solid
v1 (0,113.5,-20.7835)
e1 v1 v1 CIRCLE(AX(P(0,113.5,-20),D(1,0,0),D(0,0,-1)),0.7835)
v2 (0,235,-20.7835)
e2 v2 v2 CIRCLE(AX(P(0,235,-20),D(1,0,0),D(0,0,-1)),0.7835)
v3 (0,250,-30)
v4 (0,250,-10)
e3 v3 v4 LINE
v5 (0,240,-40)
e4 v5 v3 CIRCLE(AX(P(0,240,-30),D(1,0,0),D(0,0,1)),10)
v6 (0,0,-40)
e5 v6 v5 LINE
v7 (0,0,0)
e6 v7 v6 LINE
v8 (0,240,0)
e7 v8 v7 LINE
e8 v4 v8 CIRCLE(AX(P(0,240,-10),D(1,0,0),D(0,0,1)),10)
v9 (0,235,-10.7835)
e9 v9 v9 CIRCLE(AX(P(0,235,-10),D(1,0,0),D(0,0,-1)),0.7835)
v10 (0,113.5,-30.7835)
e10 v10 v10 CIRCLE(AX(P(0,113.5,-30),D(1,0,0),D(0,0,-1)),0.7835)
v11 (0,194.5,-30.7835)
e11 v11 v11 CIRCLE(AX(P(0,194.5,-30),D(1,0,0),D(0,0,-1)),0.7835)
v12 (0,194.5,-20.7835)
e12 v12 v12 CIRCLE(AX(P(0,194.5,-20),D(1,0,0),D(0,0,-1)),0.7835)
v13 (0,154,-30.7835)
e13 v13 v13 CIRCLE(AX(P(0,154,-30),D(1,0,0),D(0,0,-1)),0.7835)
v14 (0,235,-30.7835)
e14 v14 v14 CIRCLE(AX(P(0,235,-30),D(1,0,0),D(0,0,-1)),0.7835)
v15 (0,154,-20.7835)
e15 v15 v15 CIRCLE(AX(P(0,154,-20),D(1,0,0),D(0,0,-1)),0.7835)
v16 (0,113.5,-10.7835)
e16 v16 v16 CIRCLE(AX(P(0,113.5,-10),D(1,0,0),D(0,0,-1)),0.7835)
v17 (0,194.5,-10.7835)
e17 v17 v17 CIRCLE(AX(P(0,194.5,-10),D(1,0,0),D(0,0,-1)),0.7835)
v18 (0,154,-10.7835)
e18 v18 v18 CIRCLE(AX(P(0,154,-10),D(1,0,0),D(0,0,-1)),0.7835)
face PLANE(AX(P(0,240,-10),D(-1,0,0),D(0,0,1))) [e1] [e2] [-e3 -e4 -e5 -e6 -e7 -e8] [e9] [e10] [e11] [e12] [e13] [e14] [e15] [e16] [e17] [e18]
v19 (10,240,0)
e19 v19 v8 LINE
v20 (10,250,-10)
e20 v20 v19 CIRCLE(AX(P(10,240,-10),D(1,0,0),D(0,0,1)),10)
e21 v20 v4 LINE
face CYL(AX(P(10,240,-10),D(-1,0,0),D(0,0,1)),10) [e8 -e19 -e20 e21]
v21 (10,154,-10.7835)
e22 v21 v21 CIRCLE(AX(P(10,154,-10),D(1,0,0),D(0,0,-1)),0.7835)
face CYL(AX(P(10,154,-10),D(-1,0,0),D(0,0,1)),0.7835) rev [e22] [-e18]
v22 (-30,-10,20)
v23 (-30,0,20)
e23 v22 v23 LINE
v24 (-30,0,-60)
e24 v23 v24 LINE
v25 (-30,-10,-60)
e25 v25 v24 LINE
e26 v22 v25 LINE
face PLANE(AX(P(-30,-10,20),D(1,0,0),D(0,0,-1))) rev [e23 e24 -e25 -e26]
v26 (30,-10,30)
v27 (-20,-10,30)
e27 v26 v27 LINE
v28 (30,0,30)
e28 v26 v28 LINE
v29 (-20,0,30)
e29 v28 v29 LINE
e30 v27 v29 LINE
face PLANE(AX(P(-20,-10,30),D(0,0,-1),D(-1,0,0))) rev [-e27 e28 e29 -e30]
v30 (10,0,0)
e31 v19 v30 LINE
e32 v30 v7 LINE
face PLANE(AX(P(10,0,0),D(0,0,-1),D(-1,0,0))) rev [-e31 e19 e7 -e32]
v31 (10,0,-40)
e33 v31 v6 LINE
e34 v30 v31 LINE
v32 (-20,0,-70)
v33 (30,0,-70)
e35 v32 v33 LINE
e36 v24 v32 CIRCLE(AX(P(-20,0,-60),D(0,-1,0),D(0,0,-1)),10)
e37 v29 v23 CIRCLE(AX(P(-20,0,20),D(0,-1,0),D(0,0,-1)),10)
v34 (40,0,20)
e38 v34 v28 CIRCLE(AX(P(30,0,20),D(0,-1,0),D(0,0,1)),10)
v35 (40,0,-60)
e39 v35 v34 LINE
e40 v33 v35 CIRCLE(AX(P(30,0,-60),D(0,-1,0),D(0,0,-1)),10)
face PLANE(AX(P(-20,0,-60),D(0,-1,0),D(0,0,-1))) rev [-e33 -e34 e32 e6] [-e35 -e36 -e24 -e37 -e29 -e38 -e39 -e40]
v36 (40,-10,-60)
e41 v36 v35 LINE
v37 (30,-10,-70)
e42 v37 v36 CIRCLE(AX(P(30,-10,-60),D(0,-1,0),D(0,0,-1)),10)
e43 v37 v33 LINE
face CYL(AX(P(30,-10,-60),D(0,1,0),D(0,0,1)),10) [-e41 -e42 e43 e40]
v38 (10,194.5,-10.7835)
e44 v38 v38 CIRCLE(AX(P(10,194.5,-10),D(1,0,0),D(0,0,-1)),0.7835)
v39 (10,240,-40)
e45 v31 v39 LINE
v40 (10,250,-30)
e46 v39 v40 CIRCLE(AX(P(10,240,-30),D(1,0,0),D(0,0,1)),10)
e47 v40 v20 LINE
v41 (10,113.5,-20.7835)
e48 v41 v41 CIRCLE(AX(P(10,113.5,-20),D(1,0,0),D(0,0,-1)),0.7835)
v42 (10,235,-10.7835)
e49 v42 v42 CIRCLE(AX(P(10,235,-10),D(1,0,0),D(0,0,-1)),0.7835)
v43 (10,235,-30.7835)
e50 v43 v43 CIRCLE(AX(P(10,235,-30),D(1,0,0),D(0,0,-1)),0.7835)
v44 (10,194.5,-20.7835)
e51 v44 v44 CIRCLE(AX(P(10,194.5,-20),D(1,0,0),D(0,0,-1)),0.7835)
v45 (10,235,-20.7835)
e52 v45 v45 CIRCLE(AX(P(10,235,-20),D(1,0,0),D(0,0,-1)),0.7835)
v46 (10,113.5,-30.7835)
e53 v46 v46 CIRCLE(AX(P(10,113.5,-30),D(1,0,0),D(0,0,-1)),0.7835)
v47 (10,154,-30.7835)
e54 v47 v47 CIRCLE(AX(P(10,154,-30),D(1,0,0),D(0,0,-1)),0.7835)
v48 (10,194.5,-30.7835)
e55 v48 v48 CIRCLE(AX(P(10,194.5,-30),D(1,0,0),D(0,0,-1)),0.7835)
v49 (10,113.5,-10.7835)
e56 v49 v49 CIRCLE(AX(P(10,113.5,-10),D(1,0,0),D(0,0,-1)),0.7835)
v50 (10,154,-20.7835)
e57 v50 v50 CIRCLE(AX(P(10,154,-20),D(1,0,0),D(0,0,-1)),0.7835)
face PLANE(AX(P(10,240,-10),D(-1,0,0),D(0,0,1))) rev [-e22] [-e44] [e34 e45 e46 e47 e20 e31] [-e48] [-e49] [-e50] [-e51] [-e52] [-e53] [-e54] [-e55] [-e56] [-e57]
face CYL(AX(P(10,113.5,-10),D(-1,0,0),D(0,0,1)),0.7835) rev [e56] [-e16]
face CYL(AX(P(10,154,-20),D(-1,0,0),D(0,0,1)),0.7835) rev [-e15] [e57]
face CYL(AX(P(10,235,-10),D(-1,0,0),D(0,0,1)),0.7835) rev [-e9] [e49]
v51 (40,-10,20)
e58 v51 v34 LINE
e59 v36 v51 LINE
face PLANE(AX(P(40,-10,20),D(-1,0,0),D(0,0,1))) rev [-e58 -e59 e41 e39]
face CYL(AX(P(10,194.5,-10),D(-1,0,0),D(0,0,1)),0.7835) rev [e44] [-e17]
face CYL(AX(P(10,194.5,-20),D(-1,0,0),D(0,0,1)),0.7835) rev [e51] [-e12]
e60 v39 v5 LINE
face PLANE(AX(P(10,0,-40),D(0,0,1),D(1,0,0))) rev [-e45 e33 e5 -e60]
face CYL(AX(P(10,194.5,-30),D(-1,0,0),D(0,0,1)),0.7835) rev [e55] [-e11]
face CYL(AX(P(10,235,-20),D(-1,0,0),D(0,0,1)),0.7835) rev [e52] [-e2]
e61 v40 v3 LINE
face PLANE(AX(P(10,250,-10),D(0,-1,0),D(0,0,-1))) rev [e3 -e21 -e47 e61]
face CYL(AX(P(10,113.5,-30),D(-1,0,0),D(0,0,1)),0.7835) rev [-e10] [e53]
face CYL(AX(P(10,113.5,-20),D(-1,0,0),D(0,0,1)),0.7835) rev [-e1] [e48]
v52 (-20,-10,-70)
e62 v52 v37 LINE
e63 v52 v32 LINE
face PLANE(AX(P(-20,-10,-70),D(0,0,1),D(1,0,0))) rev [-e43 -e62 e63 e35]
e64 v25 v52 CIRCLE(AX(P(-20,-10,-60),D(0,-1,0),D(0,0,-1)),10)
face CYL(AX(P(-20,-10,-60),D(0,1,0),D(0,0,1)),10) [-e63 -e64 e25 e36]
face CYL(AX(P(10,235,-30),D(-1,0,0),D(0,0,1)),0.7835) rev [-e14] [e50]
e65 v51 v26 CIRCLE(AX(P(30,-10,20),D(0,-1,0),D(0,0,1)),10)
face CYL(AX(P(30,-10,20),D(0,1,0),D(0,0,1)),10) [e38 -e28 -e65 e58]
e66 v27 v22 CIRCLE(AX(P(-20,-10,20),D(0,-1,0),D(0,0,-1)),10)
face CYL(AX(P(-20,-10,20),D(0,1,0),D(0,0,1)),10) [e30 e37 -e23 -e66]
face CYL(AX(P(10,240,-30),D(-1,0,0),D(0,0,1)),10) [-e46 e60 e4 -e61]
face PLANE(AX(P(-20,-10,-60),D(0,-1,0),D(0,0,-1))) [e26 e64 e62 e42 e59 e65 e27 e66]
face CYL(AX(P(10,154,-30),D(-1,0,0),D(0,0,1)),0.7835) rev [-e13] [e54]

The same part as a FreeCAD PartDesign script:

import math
import FreeCAD as App
import Part
import Sketcher

V = App.Vector

doc = App.newDocument("Part")
params = doc.addObject("Spreadsheet::Sheet", "Params")
for row, (alias, value) in enumerate([
    ("sketch1_radius", "10 mm"),
    ("sketch1_width", "240 mm"),
    ("sketch1_height", "40 mm"),
    ("pad1_length", "10 mm"),
    ("sketch2_radius", "10 mm"),
    ("sketch2_width", "50 mm"),
    ("sketch2_height", "80 mm"),
    ("pad2_length", "10 mm"),
], start=1):
    params.set(f"A{row}", alias)
    params.set(f"B{row}", "=" + value)
    params.setAlias(f"B{row}", alias)

body = doc.addObject("PartDesign::Body", "Body")

sketch1 = body.newObject("Sketcher::SketchObject", "Sketch")
sketch1.AttachmentSupport = (doc.getObject("YZ_Plane"), [""])
sketch1.MapMode = "FlatFace"
sketch1.addGeometry([
    Part.LineSegment(V(0, 0, 0), V(0, -40, 0)),
    Part.LineSegment(V(0, -40, 0), V(240, -40, 0)),
    Part.ArcOfCircle(Part.Circle(V(240, -30, 0), V(0, 0, 1), 10), math.radians(-90), math.radians(0)),
    Part.LineSegment(V(250, -30, 0), V(250, -10, 0)),
    Part.ArcOfCircle(Part.Circle(V(240, -10, 0), V(0, 0, 1), 10), math.radians(0), math.radians(90)),
    Part.LineSegment(V(240, 0, 0), V(0, 0, 0)),
    Part.Circle(V(113.5, -10, 0), V(0, 0, 1), 0.8),
    Part.Circle(V(154, -10, 0), V(0, 0, 1), 0.8),
    Part.Circle(V(113.5, -20, 0), V(0, 0, 1), 0.8),
    Part.Circle(V(113.5, -30, 0), V(0, 0, 1), 0.8),
    Part.Circle(V(154, -20, 0), V(0, 0, 1), 0.8),
    Part.Circle(V(154, -30, 0), V(0, 0, 1), 0.8),
    Part.Circle(V(194.5, -10, 0), V(0, 0, 1), 0.8),
    Part.Circle(V(235, -10, 0), V(0, 0, 1), 0.8),
    Part.Circle(V(194.5, -20, 0), V(0, 0, 1), 0.8),
    Part.Circle(V(194.5, -30, 0), V(0, 0, 1), 0.8),
    Part.Circle(V(235, -20, 0), V(0, 0, 1), 0.8),
    Part.Circle(V(235, -30, 0), V(0, 0, 1), 0.8),
], False)
sketch1.addConstraint([
    Sketcher.Constraint("Coincident", 0, 2, 1, 1),
    Sketcher.Constraint("Tangent", 1, 2, 2, 1),
    Sketcher.Constraint("Tangent", 2, 2, 3, 1),
    Sketcher.Constraint("Tangent", 3, 2, 4, 1),
    Sketcher.Constraint("Tangent", 4, 2, 5, 1),
    Sketcher.Constraint("Coincident", 5, 2, 0, 1),
    Sketcher.Constraint("Vertical", 0),
    Sketcher.Constraint("Horizontal", 1),
    Sketcher.Constraint("Vertical", 3),
    Sketcher.Constraint("Horizontal", 5),
    Sketcher.Constraint("Coincident", 5, 2, -1, 1),
    Sketcher.Constraint("Equal", 2, 4),
    Sketcher.Constraint("Equal", 6, 7),
    Sketcher.Constraint("Equal", 7, 8),
    Sketcher.Constraint("Equal", 8, 9),
    Sketcher.Constraint("Equal", 9, 10),
    Sketcher.Constraint("Equal", 10, 11),
    Sketcher.Constraint("Equal", 11, 12),
    Sketcher.Constraint("Equal", 12, 13),
    Sketcher.Constraint("Equal", 13, 14),
    Sketcher.Constraint("Equal", 14, 15),
    Sketcher.Constraint("Equal", 15, 16),
    Sketcher.Constraint("Equal", 16, 17),
    Sketcher.Constraint("Horizontal", 4, 3, 6, 3),
    Sketcher.Constraint("Horizontal", 6, 3, 7, 3),
    Sketcher.Constraint("Horizontal", 2, 3, 9, 3),
    Sketcher.Constraint("Horizontal", 8, 3, 10, 3),
    Sketcher.Constraint("Horizontal", 9, 3, 11, 3),
    Sketcher.Constraint("Horizontal", 7, 3, 12, 3),
    Sketcher.Constraint("Horizontal", 12, 3, 13, 3),
    Sketcher.Constraint("Horizontal", 10, 3, 14, 3),
    Sketcher.Constraint("Horizontal", 11, 3, 15, 3),
    Sketcher.Constraint("Horizontal", 14, 3, 16, 3),
    Sketcher.Constraint("Horizontal", 15, 3, 17, 3),
    Sketcher.Constraint("Vertical", 6, 3, 8, 3),
    Sketcher.Constraint("Vertical", 8, 3, 9, 3),
    Sketcher.Constraint("Vertical", 7, 3, 10, 3),
    Sketcher.Constraint("Vertical", 10, 3, 11, 3),
    Sketcher.Constraint("Vertical", 12, 3, 14, 3),
    Sketcher.Constraint("Vertical", 14, 3, 15, 3),
    Sketcher.Constraint("Vertical", 13, 3, 16, 3),
    Sketcher.Constraint("Vertical", 16, 3, 17, 3),
    Sketcher.Constraint("Radius", 2, 10.0),
    Sketcher.Constraint("DistanceX", 1, 1, 1, 2, 240.0),
    Sketcher.Constraint("DistanceY", 0, 2, 0, 1, 40.0),
    Sketcher.Constraint("Diameter", 6, 1.567),
    Sketcher.Constraint("DistanceX", -1, 1, 7, 3, 154.0),
    Sketcher.Constraint("DistanceY", 8, 3, -1, 1, 20.0),
    Sketcher.Constraint("DistanceX", -1, 1, 13, 3, 235.0),
    Sketcher.Constraint("DistanceX", -1, 1, 6, 3, 113.5),
    Sketcher.Constraint("DistanceX", -1, 1, 12, 3, 194.5),
])
sketch1.setExpression("Constraints[42]", "Params.sketch1_radius")
sketch1.setExpression("Constraints[43]", "Params.sketch1_width")
sketch1.setExpression("Constraints[44]", "Params.sketch1_height")
pad1 = body.newObject("PartDesign::Pad", "Pad")
pad1.Profile = sketch1
pad1.setExpression("Length", "Params.pad1_length")

sketch2 = body.newObject("Sketcher::SketchObject", "Sketch001")
sketch2.AttachmentSupport = (doc.getObject("XZ_Plane"), [""])
sketch2.MapMode = "FlatFace"
sketch2.addGeometry([
    Part.LineSegment(V(30, 30, 0), V(-20, 30, 0)),
    Part.ArcOfCircle(Part.Circle(V(-20, 20, 0), V(0, 0, 1), 10), math.radians(90), math.radians(180)),
    Part.LineSegment(V(-30, 20, 0), V(-30, -60, 0)),
    Part.ArcOfCircle(Part.Circle(V(-20, -60, 0), V(0, 0, 1), 10), math.radians(180), math.radians(270)),
    Part.LineSegment(V(-20, -70, 0), V(30, -70, 0)),
    Part.ArcOfCircle(Part.Circle(V(30, -60, 0), V(0, 0, 1), 10), math.radians(-90), math.radians(0)),
    Part.LineSegment(V(40, -60, 0), V(40, 20, 0)),
    Part.ArcOfCircle(Part.Circle(V(30, 20, 0), V(0, 0, 1), 10), math.radians(0), math.radians(90)),
], False)
sketch2.addConstraint([
    Sketcher.Constraint("Tangent", 0, 2, 1, 1),
    Sketcher.Constraint("Tangent", 1, 2, 2, 1),
    Sketcher.Constraint("Tangent", 2, 2, 3, 1),
    Sketcher.Constraint("Tangent", 3, 2, 4, 1),
    Sketcher.Constraint("Tangent", 4, 2, 5, 1),
    Sketcher.Constraint("Tangent", 5, 2, 6, 1),
    Sketcher.Constraint("Tangent", 6, 2, 7, 1),
    Sketcher.Constraint("Tangent", 7, 2, 0, 1),
    Sketcher.Constraint("Horizontal", 0),
    Sketcher.Constraint("Vertical", 2),
    Sketcher.Constraint("Horizontal", 4),
    Sketcher.Constraint("Vertical", 6),
    Sketcher.Constraint("Equal", 1, 3),
    Sketcher.Constraint("Equal", 3, 5),
    Sketcher.Constraint("Equal", 5, 7),
    Sketcher.Constraint("Radius", 1, 10.0),
    Sketcher.Constraint("DistanceX", 0, 2, 0, 1, 50.0),
    Sketcher.Constraint("DistanceY", 2, 2, 2, 1, 80.0),
    Sketcher.Constraint("DistanceX", 1, 3, -1, 1, 20.0),
    Sketcher.Constraint("DistanceY", -1, 1, 1, 3, 20.0),
])
sketch2.setExpression("Constraints[15]", "Params.sketch2_radius")
sketch2.setExpression("Constraints[16]", "Params.sketch2_width")
sketch2.setExpression("Constraints[17]", "Params.sketch2_height")
pad2 = body.newObject("PartDesign::Pad", "Pad001")
pad2.Profile = sketch2
pad2.setExpression("Length", "Params.pad2_length")

doc.recompute()
